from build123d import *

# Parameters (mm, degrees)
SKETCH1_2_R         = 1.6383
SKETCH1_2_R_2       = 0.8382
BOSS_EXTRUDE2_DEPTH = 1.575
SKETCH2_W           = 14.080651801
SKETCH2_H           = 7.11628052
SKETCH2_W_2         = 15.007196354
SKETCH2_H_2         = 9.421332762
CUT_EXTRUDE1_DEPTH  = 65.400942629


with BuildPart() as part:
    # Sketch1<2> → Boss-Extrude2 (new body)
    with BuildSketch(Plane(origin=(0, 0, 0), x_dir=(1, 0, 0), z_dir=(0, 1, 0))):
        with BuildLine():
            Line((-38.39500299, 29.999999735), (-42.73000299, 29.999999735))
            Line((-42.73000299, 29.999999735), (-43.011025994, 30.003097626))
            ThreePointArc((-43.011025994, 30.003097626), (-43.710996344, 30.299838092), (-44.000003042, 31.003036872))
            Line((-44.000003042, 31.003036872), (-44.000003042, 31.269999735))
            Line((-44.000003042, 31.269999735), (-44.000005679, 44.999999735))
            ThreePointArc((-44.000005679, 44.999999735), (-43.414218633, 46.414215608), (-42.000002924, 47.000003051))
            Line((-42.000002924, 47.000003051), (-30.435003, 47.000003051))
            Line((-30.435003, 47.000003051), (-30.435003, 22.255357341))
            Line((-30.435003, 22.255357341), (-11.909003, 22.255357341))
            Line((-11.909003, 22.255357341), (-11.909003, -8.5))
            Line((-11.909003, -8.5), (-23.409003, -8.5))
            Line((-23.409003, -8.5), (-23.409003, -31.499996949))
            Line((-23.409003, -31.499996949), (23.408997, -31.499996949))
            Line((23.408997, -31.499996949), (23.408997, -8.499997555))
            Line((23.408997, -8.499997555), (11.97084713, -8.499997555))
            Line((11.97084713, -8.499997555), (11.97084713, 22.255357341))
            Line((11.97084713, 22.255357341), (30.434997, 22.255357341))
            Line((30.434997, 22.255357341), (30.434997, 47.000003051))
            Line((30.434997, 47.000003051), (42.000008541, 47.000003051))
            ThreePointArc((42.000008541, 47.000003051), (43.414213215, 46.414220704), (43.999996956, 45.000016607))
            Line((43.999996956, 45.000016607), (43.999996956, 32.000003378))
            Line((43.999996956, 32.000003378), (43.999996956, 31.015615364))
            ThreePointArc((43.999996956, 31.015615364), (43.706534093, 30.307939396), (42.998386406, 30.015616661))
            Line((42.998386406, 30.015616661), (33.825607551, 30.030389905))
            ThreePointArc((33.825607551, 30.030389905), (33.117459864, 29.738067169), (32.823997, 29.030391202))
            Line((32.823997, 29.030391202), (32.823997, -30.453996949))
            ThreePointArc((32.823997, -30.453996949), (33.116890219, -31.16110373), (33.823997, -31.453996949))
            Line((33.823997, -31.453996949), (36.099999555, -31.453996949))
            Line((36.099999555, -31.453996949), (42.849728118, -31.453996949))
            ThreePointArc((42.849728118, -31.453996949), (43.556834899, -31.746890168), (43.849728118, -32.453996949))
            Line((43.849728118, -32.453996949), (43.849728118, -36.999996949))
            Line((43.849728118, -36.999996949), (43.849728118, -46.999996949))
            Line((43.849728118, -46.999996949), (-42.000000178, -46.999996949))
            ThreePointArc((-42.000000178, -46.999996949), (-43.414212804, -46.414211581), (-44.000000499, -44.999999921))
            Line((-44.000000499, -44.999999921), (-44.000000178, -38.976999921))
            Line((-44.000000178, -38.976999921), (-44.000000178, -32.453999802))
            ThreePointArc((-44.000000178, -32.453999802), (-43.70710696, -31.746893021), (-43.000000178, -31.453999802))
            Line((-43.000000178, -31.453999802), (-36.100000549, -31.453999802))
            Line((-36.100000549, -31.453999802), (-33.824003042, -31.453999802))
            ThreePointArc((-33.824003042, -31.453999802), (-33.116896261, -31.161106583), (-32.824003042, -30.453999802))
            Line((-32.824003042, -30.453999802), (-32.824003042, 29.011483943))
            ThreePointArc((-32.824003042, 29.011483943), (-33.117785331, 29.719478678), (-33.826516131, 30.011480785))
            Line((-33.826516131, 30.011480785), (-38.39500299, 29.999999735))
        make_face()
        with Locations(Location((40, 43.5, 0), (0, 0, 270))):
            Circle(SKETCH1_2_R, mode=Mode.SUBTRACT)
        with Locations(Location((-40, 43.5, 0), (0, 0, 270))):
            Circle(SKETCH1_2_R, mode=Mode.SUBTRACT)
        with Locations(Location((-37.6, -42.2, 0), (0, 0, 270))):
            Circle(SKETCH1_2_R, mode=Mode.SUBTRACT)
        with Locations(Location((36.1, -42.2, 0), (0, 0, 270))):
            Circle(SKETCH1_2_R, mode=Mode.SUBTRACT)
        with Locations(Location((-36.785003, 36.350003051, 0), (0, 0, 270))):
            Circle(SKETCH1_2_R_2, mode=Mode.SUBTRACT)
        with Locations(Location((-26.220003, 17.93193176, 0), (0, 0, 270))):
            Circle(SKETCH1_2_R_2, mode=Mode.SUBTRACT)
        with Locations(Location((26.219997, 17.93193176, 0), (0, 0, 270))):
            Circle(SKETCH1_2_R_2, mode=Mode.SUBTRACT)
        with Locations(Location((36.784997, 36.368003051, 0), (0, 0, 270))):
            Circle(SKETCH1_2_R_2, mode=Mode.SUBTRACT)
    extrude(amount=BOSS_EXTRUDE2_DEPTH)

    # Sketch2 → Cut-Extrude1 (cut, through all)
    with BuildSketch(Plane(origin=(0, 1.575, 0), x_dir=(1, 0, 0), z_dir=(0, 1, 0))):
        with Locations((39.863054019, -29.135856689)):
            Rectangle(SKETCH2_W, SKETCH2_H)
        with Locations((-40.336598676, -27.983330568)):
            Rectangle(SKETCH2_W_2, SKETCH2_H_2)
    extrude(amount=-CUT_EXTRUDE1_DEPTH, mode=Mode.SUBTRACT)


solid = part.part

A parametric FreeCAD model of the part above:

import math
import FreeCAD as App
import Part
import Sketcher
from FreeCAD import Vector

doc = App.newDocument("Part")
body = doc.addObject("PartDesign::Body", "Body")

# Sketch on XZ plane
sketch1 = body.newObject("Sketcher::SketchObject", "Sketch")
sketch1.AttachmentSupport = (doc.getObject("XZ_Plane"), [""])
sketch1.MapMode = "FlatFace"
sketch1.addGeometry([
    Part.LineSegment(Vector(-42.730003, -30, 0), Vector(-38.395003, -30, 0)),  # 0
    Part.LineSegment(Vector(-38.395003, -30, 0), Vector(-33.826516, -30.011481, 0)),  # 1
    Part.ArcOfCircle(Part.Circle(Vector(-33.824003, -29.011484, 0), Vector(0, 0, 1), 1), math.radians(-90.14399), math.radians(0)),  # 2
    Part.LineSegment(Vector(-32.824003, -29.011484, 0), Vector(-32.824003, 30.454, 0)),  # 3
    Part.ArcOfCircle(Part.Circle(Vector(-33.824003, 30.454, 0), Vector(0, 0, 1), 1), math.radians(0), math.radians(90)),  # 4
    Part.LineSegment(Vector(-33.824003, 31.454, 0), Vector(-43, 31.454, 0)),  # 5
    Part.ArcOfCircle(Part.Circle(Vector(-43, 32.454, 0), Vector(0, 0, 1), 1), math.radians(180), math.radians(270)),  # 6
    Part.LineSegment(Vector(-44, 32.454, 0), Vector(-44, 38.977, 0)),  # 7
    Part.LineSegment(Vector(-44, 38.977, 0), Vector(-44, 45, 0)),  # 8
    Part.ArcOfCircle(Part.Circle(Vector(-42, 44.999997, 0), Vector(0, 0, 1), 2), math.radians(90), math.radians(179.999906)),  # 9
    Part.LineSegment(Vector(-42, 46.999997, 0), Vector(43.849728, 46.999997, 0)),  # 10
    Part.LineSegment(Vector(43.849728, 46.999997, 0), Vector(43.849728, 32.453997, 0)),  # 11
    Part.ArcOfCircle(Part.Circle(Vector(42.849728, 32.453997, 0), Vector(0, 0, 1), 1), math.radians(-90), math.radians(0)),  # 12
    Part.LineSegment(Vector(42.849728, 31.453997, 0), Vector(33.823997, 31.453997, 0)),  # 13
    Part.ArcOfCircle(Part.Circle(Vector(33.823997, 30.453997, 0), Vector(0, 0, 1), 1), math.radians(90), math.radians(180)),  # 14
    Part.LineSegment(Vector(32.823997, 30.453997, 0), Vector(32.823997, -29.030391, 0)),  # 15
    Part.ArcOfCircle(Part.Circle(Vector(33.823997, -29.030391, 0), Vector(0, 0, 1), 1), math.radians(-180), math.radians(-89.907722)),  # 16
    Part.LineSegment(Vector(33.825608, -30.03039, 0), Vector(42.998386, -30.015617, 0)),  # 17
    Part.ArcOfCircle(Part.Circle(Vector(42.999997, -31.015615, 0), Vector(0, 0, 1), 1), math.radians(0), math.radians(90.092278)),  # 18
    Part.LineSegment(Vector(43.999997, -31.015615, 0), Vector(43.999997, -45.000017, 0)),  # 19
    Part.ArcOfCircle(Part.Circle(Vector(42.000009, -45.000015, 0), Vector(0, 0, 1), 1.999988), math.radians(-90), math.radians(-0.000056)),  # 20
    Part.LineSegment(Vector(42.000009, -47.000003, 0), Vector(30.434997, -47.000003, 0)),  # 21
    Part.LineSegment(Vector(30.434997, -47.000003, 0), Vector(30.434997, -22.255357, 0)),  # 22
    Part.LineSegment(Vector(30.434997, -22.255357, 0), Vector(11.970847, -22.255357, 0)),  # 23
    Part.LineSegment(Vector(11.970847, -22.255357, 0), Vector(11.970847, 8.499998, 0)),  # 24
    Part.LineSegment(Vector(11.970847, 8.499998, 0), Vector(23.408997, 8.499998, 0)),  # 25
    Part.LineSegment(Vector(23.408997, 8.499998, 0), Vector(23.408997, 31.499997, 0)),  # 26
    Part.LineSegment(Vector(23.408997, 31.499997, 0), Vector(-23.409003, 31.499997, 0)),  # 27
    Part.LineSegment(Vector(-23.409003, 31.499997, 0), Vector(-23.409003, 8.5, 0)),  # 28
    Part.LineSegment(Vector(-23.409003, 8.5, 0), Vector(-11.909003, 8.5, 0)),  # 29
    Part.LineSegment(Vector(-11.909003, 8.5, 0), Vector(-11.909003, -22.255357, 0)),  # 30
    Part.LineSegment(Vector(-11.909003, -22.255357, 0), Vector(-30.435003, -22.255357, 0)),  # 31
    Part.LineSegment(Vector(-30.435003, -22.255357, 0), Vector(-30.435003, -47.000003, 0)),  # 32
    Part.LineSegment(Vector(-30.435003, -47.000003, 0), Vector(-42.000003, -47.000003, 0)),  # 33
    Part.ArcOfCircle(Part.Circle(Vector(-42.000003, -45, 0), Vector(0, 0, 1), 2.000003), math.radians(179.999984), math.radians(270)),  # 34
    Part.LineSegment(Vector(-44.000006, -45, 0), Vector(-44.000003, -31.27, 0)),  # 35
    Part.LineSegment(Vector(-44.000003, -31.27, 0), Vector(-44.000003, -31.003037, 0)),  # 36
    Part.ArcOfCircle(Part.Circle(Vector(-43.000003, -31.003037, 0), Vector(0, 0, 1), 1), math.radians(90.631581), math.radians(180)),  # 37
    Part.LineSegment(Vector(-43.011026, -30.003098, 0), Vector(-42.730003, -30, 0)),  # 38
    Part.Circle(Vector(36.1, 42.2, 0), Vector(0, 0, 1), 1.6383),  # 39
    Part.Circle(Vector(-37.6, 42.2, 0), Vector(0, 0, 1), 1.6383),  # 40
    Part.Circle(Vector(26.219997, -17.931932, 0), Vector(0, 0, 1), 0.8382),  # 41
    Part.Circle(Vector(36.784997, -36.368003, 0), Vector(0, 0, 1), 0.8382),  # 42
    Part.Circle(Vector(40, -43.5, 0), Vector(0, 0, 1), 1.6383),  # 43
    Part.Circle(Vector(-26.220003, -17.931932, 0), Vector(0, 0, 1), 0.8382),  # 44
    Part.Circle(Vector(-36.785003, -36.350003, 0), Vector(0, 0, 1), 0.8382),  # 45
    Part.Circle(Vector(-40, -43.5, 0), Vector(0, 0, 1), 1.6383),  # 46
], False)
sketch1.addConstraint([
    Sketcher.Constraint("Coincident", 0, 2, 1, 1),
    Sketcher.Constraint("Tangent", 1, 2, 2, 1),
    Sketcher.Constraint("Tangent", 2, 2, 3, 1),
    Sketcher.Constraint("Tangent", 3, 2, 4, 1),
    Sketcher.Constraint("Tangent", 4, 2, 5, 1),
    Sketcher.Constraint("Tangent", 5, 2, 6, 2),
    Sketcher.Constraint("Tangent", 6, 1, 7, 1),
    Sketcher.Constraint("Coincident", 7, 2, 8, 1),
    Sketcher.Constraint("Tangent", 8, 2, 9, 2),
    Sketcher.Constraint("Tangent", 9, 1, 10, 1),
    Sketcher.Constraint("Coincident", 10, 2, 11, 1),
    Sketcher.Constraint("Tangent", 11, 2, 12, 2),
    Sketcher.Constraint("Tangent", 12, 1, 13, 1),
    Sketcher.Constraint("Tangent", 13, 2, 14, 1),
    Sketcher.Constraint("Tangent", 14, 2, 15, 1),
    Sketcher.Constraint("Tangent", 15, 2, 16, 1),
    Sketcher.Constraint("Tangent", 16, 2, 17, 1),
    Sketcher.Constraint("Tangent", 17, 2, 18, 2),
    Sketcher.Constraint("Tangent", 18, 1, 19, 1),
    Sketcher.Constraint("Tangent", 19, 2, 20, 2),
    Sketcher.Constraint("Tangent", 20, 1, 21, 1),
    Sketcher.Constraint("Coincident", 21, 2, 22, 1),
    Sketcher.Constraint("Coincident", 22, 2, 23, 1),
    Sketcher.Constraint("Coincident", 23, 2, 24, 1),
    Sketcher.Constraint("Coincident", 24, 2, 25, 1),
    Sketcher.Constraint("Coincident", 25, 2, 26, 1),
    Sketcher.Constraint("Coincident", 26, 2, 27, 1),
    Sketcher.Constraint("Coincident", 27, 2, 28, 1),
    Sketcher.Constraint("Coincident", 28, 2, 29, 1),
    Sketcher.Constraint("Coincident", 29, 2, 30, 1),
    Sketcher.Constraint("Coincident", 30, 2, 31, 1),
    Sketcher.Constraint("Coincident", 31, 2, 32, 1),
    Sketcher.Constraint("Coincident", 32, 2, 33, 1),
    Sketcher.Constraint("Tangent", 33, 2, 34, 2),
    Sketcher.Constraint("Tangent", 34, 1, 35, 1),
    Sketcher.Constraint("Coincident", 35, 2, 36, 1),
    Sketcher.Constraint("Tangent", 36, 2, 37, 2),
    Sketcher.Constraint("Tangent", 37, 1, 38, 1),
    Sketcher.Constraint("Coincident", 38, 2, 0, 1),
    Sketcher.Constraint("Horizontal", 0),
    Sketcher.Constraint("Vertical", 3),
    Sketcher.Constraint("Horizontal", 5),
    Sketcher.Constraint("Vertical", 7),
    Sketcher.Constraint("Vertical", 8),
    Sketcher.Constraint("Horizontal", 10),
    Sketcher.Constraint("Vertical", 11),
    Sketcher.Constraint("Horizontal", 13),
    Sketcher.Constraint("Vertical", 15),
    Sketcher.Constraint("Vertical", 19),
    Sketcher.Constraint("Horizontal", 21),
    Sketcher.Constraint("Vertical", 22),
    Sketcher.Constraint("Horizontal", 23),
    Sketcher.Constraint("Vertical", 24),
    Sketcher.Constraint("Horizontal", 25),
    Sketcher.Constraint("Vertical", 26),
    Sketcher.Constraint("Horizontal", 27),
    Sketcher.Constraint("Vertical", 28),
    Sketcher.Constraint("Horizontal", 29),
    Sketcher.Constraint("Vertical", 30),
    Sketcher.Constraint("Horizontal", 31),
    Sketcher.Constraint("Vertical", 32),
    Sketcher.Constraint("Horizontal", 33),
    Sketcher.Constraint("Vertical", 36),
    Sketcher.Constraint("Equal", 2, 4),
    Sketcher.Constraint("Equal", 4, 6),
    Sketcher.Constraint("Equal", 6, 12),
    Sketcher.Constraint("Equal", 12, 14),
    Sketcher.Constraint("Equal", 14, 16),
    Sketcher.Constraint("Equal", 16, 18),
    Sketcher.Constraint("Equal", 18, 37),
    Sketcher.Constraint("Equal", 39, 40),
    Sketcher.Constraint("Equal", 41, 42),
    Sketcher.Constraint("Equal", 40, 43),
    Sketcher.Constraint("Equal", 42, 44),
    Sketcher.Constraint("Equal", 44, 45),
    Sketcher.Constraint("Equal", 43, 46),
    Sketcher.Constraint("Symmetric", 4, 3, 14, 3, -2),
    Sketcher.Constraint("Symmetric", 41, 3, 44, 3, -2),
    Sketcher.Constraint("Symmetric", 43, 3, 46, 3, -2),
    Sketcher.Constraint("Symmetric", 25, 2, 28, 2, -2),
    Sketcher.Constraint("Symmetric", 22, 2, 31, 2, -2),
    Sketcher.Constraint("Symmetric", 20, 1, 33, 2, -2),
    Sketcher.Constraint("Symmetric", 9, 3, 34, 3, -1),
    Sketcher.Constraint("Symmetric", 8, 2, 34, 1, -1),
    Sketcher.Constraint("Horizontal", 39, 3, 40, 3),
    Sketcher.Constraint("Radius", 2, 1.0),
    Sketcher.Constraint("Radius", 9, 2.0),
    Sketcher.Constraint("DistanceY", 26, 1, 26, 2, 22.999999),
    Sketcher.Constraint("DistanceX", 29, 1, 29, 2, 11.5),
    Sketcher.Constraint("DistanceX", 6, 3, -1, 1, 43.0),
    Sketcher.Constraint("DistanceY", 34, 3, -1, 1, 45.0),
    Sketcher.Constraint("DistanceX", -1, 1, 43, 3, 40.0),
    Sketcher.Constraint("DistanceY", 0, 2, -1, 1, 30.0),
    Sketcher.Constraint("Diameter", 39, 3.2766),
    Sketcher.Constraint("Diameter", 41, 1.6764),
    Sketcher.Constraint("DistanceX", -1, 1, 39, 3, 36.1),
    Sketcher.Constraint("DistanceY", -1, 1, 39, 3, 42.2),
    Sketcher.Constraint("DistanceX", 40, 3, -1, 1, 37.6),
    Sketcher.Constraint("DistanceY", 43, 3, -1, 1, 43.5),
    Sketcher.Constraint("DistanceY", -1, 1, 28, 2, 8.5),
    Sketcher.Constraint("Distance", 35, 13.73),
    Sketcher.Constraint("DistanceX", 0, 1, 0, 2, 4.335),
    Sketcher.Constraint("DistanceX", 27, 2, 27, 1, 46.818),
    Sketcher.Constraint("DistanceX", 31, 2, 31, 1, 18.526),
    Sketcher.Constraint("DistanceY", 7, 1, 7, 2, 6.523),
    Sketcher.Constraint("DistanceY", 8, 1, 8, 2, 6.023),
    Sketcher.Constraint("Radius", 20, 1.999988),
    Sketcher.Constraint("DistanceX", 41, 3, 18, 3, 16.78),
    Sketcher.Constraint("DistanceX", 0, 2, 45, 3, 1.61),
    Sketcher.Constraint("DistanceX", 21, 2, 42, 3, 6.35),
    Sketcher.Constraint("DistanceX", 0, 2, 31, 2, 7.96),
    Sketcher.Constraint("DistanceY", 32, 2, 45, 3, 10.65),
    Sketcher.Constraint("DistanceY", 19, 2, 19, 1, 13.984401),
    Sketcher.Constraint("DistanceX", 4, 3, 14, 3, 67.648),
    Sketcher.Constraint("DistanceY", 42, 3, 14, 3, 66.822),
    Sketcher.Constraint("Distance", 1, 4.568501),
    Sketcher.Constraint("DistanceX", 10, 1, 10, 2, 85.849728),
    Sketcher.Constraint("DistanceX", 23, 2, 23, 1, 18.46415),
    Sketcher.Constraint("DistanceY", 15, 2, 15, 1, 59.484388),
    Sketcher.Constraint("Distance", 38, 0.28104),
    Sketcher.Constraint("DistanceY", 22, 1, 22, 2, 24.744646),
    Sketcher.Constraint("DistanceY", 41, 3, -1, 1, 17.931932),
])
pad1 = body.newObject("PartDesign::Pad", "Pad")
pad1.Profile = sketch1
pad1.Length = 1.575
pad1.Reversed = True

# Sketch on XZ plane
sketch2 = body.newObject("Sketcher::SketchObject", "Sketch001")
sketch2.AttachmentSupport = (doc.getObject("XZ_Plane"), [""])
sketch2.MapMode = "FlatFace"
sketch2.AttachmentOffset = App.Placement(Vector(0, 0, -1.575), App.Rotation())
sketch2.addGeometry([
    Part.LineSegment(Vector(32.822728, 25.577716, 0), Vector(32.822728, 32.693997, 0)),  # 0
    Part.LineSegment(Vector(32.822728, 32.693997, 0), Vector(46.90338, 32.693997, 0)),  # 1
    Part.LineSegment(Vector(46.90338, 32.693997, 0), Vector(46.90338, 25.577716, 0)),  # 2
    Part.LineSegment(Vector(46.90338, 25.577716, 0), Vector(32.822728, 25.577716, 0)),  # 3
    Part.LineSegment(Vector(-47.840197, 23.272664, 0), Vector(-47.840197, 32.693997, 0)),  # 4
    Part.LineSegment(Vector(-47.840197, 32.693997, 0), Vector(-32.833, 32.693997, 0)),  # 5
    Part.LineSegment(Vector(-32.833, 32.693997, 0), Vector(-32.833, 23.272664, 0)),  # 6
    Part.LineSegment(Vector(-32.833, 23.272664, 0), Vector(-47.840197, 23.272664, 0)),  # 7
], False)
sketch2.addConstraint([
    Sketcher.Constraint("Coincident", 0, 2, 1, 1),
    Sketcher.Constraint("Coincident", 1, 2, 2, 1),
    Sketcher.Constraint("Coincident", 2, 2, 3, 1),
    Sketcher.Constraint("Coincident", 3, 2, 0, 1),
    Sketcher.Constraint("Coincident", 4, 2, 5, 1),
    Sketcher.Constraint("Coincident", 5, 2, 6, 1),
    Sketcher.Constraint("Coincident", 6, 2, 7, 1),
    Sketcher.Constraint("Coincident", 7, 2, 4, 1),
    Sketcher.Constraint("Vertical", 0),
    Sketcher.Constraint("Horizontal", 1),
    Sketcher.Constraint("Vertical", 2),
    Sketcher.Constraint("Horizontal", 3),
    Sketcher.Constraint("Vertical", 4),
    Sketcher.Constraint("Horizontal", 5),
    Sketcher.Constraint("Vertical", 6),
    Sketcher.Constraint("Horizontal", 7),
    Sketcher.Constraint("Horizontal", 1, 2, 4, 2),
    Sketcher.Constraint("DistanceX", 5, 2, -1, 1, 32.833),
    Sketcher.Constraint("DistanceX", 1, 1, 1, 2, 14.080652),
    Sketcher.Constraint("DistanceY", 0, 1, 0, 2, 7.116281),
    Sketcher.Constraint("DistanceX", 5, 1, 5, 2, 15.007196),
    Sketcher.Constraint("DistanceY", 4, 1, 4, 2, 9.421333),
    Sketcher.Constraint("DistanceX", -1, 1, 0, 2, 32.822728),
    Sketcher.Constraint("DistanceY", -1, 1, 0, 2, 32.693997),
])
pocket1 = body.newObject("PartDesign::Pocket", "Pocket")
pocket1.Profile = sketch2
pocket1.Type = "ThroughAll"
pocket1.Reversed = True

doc.recompute()
